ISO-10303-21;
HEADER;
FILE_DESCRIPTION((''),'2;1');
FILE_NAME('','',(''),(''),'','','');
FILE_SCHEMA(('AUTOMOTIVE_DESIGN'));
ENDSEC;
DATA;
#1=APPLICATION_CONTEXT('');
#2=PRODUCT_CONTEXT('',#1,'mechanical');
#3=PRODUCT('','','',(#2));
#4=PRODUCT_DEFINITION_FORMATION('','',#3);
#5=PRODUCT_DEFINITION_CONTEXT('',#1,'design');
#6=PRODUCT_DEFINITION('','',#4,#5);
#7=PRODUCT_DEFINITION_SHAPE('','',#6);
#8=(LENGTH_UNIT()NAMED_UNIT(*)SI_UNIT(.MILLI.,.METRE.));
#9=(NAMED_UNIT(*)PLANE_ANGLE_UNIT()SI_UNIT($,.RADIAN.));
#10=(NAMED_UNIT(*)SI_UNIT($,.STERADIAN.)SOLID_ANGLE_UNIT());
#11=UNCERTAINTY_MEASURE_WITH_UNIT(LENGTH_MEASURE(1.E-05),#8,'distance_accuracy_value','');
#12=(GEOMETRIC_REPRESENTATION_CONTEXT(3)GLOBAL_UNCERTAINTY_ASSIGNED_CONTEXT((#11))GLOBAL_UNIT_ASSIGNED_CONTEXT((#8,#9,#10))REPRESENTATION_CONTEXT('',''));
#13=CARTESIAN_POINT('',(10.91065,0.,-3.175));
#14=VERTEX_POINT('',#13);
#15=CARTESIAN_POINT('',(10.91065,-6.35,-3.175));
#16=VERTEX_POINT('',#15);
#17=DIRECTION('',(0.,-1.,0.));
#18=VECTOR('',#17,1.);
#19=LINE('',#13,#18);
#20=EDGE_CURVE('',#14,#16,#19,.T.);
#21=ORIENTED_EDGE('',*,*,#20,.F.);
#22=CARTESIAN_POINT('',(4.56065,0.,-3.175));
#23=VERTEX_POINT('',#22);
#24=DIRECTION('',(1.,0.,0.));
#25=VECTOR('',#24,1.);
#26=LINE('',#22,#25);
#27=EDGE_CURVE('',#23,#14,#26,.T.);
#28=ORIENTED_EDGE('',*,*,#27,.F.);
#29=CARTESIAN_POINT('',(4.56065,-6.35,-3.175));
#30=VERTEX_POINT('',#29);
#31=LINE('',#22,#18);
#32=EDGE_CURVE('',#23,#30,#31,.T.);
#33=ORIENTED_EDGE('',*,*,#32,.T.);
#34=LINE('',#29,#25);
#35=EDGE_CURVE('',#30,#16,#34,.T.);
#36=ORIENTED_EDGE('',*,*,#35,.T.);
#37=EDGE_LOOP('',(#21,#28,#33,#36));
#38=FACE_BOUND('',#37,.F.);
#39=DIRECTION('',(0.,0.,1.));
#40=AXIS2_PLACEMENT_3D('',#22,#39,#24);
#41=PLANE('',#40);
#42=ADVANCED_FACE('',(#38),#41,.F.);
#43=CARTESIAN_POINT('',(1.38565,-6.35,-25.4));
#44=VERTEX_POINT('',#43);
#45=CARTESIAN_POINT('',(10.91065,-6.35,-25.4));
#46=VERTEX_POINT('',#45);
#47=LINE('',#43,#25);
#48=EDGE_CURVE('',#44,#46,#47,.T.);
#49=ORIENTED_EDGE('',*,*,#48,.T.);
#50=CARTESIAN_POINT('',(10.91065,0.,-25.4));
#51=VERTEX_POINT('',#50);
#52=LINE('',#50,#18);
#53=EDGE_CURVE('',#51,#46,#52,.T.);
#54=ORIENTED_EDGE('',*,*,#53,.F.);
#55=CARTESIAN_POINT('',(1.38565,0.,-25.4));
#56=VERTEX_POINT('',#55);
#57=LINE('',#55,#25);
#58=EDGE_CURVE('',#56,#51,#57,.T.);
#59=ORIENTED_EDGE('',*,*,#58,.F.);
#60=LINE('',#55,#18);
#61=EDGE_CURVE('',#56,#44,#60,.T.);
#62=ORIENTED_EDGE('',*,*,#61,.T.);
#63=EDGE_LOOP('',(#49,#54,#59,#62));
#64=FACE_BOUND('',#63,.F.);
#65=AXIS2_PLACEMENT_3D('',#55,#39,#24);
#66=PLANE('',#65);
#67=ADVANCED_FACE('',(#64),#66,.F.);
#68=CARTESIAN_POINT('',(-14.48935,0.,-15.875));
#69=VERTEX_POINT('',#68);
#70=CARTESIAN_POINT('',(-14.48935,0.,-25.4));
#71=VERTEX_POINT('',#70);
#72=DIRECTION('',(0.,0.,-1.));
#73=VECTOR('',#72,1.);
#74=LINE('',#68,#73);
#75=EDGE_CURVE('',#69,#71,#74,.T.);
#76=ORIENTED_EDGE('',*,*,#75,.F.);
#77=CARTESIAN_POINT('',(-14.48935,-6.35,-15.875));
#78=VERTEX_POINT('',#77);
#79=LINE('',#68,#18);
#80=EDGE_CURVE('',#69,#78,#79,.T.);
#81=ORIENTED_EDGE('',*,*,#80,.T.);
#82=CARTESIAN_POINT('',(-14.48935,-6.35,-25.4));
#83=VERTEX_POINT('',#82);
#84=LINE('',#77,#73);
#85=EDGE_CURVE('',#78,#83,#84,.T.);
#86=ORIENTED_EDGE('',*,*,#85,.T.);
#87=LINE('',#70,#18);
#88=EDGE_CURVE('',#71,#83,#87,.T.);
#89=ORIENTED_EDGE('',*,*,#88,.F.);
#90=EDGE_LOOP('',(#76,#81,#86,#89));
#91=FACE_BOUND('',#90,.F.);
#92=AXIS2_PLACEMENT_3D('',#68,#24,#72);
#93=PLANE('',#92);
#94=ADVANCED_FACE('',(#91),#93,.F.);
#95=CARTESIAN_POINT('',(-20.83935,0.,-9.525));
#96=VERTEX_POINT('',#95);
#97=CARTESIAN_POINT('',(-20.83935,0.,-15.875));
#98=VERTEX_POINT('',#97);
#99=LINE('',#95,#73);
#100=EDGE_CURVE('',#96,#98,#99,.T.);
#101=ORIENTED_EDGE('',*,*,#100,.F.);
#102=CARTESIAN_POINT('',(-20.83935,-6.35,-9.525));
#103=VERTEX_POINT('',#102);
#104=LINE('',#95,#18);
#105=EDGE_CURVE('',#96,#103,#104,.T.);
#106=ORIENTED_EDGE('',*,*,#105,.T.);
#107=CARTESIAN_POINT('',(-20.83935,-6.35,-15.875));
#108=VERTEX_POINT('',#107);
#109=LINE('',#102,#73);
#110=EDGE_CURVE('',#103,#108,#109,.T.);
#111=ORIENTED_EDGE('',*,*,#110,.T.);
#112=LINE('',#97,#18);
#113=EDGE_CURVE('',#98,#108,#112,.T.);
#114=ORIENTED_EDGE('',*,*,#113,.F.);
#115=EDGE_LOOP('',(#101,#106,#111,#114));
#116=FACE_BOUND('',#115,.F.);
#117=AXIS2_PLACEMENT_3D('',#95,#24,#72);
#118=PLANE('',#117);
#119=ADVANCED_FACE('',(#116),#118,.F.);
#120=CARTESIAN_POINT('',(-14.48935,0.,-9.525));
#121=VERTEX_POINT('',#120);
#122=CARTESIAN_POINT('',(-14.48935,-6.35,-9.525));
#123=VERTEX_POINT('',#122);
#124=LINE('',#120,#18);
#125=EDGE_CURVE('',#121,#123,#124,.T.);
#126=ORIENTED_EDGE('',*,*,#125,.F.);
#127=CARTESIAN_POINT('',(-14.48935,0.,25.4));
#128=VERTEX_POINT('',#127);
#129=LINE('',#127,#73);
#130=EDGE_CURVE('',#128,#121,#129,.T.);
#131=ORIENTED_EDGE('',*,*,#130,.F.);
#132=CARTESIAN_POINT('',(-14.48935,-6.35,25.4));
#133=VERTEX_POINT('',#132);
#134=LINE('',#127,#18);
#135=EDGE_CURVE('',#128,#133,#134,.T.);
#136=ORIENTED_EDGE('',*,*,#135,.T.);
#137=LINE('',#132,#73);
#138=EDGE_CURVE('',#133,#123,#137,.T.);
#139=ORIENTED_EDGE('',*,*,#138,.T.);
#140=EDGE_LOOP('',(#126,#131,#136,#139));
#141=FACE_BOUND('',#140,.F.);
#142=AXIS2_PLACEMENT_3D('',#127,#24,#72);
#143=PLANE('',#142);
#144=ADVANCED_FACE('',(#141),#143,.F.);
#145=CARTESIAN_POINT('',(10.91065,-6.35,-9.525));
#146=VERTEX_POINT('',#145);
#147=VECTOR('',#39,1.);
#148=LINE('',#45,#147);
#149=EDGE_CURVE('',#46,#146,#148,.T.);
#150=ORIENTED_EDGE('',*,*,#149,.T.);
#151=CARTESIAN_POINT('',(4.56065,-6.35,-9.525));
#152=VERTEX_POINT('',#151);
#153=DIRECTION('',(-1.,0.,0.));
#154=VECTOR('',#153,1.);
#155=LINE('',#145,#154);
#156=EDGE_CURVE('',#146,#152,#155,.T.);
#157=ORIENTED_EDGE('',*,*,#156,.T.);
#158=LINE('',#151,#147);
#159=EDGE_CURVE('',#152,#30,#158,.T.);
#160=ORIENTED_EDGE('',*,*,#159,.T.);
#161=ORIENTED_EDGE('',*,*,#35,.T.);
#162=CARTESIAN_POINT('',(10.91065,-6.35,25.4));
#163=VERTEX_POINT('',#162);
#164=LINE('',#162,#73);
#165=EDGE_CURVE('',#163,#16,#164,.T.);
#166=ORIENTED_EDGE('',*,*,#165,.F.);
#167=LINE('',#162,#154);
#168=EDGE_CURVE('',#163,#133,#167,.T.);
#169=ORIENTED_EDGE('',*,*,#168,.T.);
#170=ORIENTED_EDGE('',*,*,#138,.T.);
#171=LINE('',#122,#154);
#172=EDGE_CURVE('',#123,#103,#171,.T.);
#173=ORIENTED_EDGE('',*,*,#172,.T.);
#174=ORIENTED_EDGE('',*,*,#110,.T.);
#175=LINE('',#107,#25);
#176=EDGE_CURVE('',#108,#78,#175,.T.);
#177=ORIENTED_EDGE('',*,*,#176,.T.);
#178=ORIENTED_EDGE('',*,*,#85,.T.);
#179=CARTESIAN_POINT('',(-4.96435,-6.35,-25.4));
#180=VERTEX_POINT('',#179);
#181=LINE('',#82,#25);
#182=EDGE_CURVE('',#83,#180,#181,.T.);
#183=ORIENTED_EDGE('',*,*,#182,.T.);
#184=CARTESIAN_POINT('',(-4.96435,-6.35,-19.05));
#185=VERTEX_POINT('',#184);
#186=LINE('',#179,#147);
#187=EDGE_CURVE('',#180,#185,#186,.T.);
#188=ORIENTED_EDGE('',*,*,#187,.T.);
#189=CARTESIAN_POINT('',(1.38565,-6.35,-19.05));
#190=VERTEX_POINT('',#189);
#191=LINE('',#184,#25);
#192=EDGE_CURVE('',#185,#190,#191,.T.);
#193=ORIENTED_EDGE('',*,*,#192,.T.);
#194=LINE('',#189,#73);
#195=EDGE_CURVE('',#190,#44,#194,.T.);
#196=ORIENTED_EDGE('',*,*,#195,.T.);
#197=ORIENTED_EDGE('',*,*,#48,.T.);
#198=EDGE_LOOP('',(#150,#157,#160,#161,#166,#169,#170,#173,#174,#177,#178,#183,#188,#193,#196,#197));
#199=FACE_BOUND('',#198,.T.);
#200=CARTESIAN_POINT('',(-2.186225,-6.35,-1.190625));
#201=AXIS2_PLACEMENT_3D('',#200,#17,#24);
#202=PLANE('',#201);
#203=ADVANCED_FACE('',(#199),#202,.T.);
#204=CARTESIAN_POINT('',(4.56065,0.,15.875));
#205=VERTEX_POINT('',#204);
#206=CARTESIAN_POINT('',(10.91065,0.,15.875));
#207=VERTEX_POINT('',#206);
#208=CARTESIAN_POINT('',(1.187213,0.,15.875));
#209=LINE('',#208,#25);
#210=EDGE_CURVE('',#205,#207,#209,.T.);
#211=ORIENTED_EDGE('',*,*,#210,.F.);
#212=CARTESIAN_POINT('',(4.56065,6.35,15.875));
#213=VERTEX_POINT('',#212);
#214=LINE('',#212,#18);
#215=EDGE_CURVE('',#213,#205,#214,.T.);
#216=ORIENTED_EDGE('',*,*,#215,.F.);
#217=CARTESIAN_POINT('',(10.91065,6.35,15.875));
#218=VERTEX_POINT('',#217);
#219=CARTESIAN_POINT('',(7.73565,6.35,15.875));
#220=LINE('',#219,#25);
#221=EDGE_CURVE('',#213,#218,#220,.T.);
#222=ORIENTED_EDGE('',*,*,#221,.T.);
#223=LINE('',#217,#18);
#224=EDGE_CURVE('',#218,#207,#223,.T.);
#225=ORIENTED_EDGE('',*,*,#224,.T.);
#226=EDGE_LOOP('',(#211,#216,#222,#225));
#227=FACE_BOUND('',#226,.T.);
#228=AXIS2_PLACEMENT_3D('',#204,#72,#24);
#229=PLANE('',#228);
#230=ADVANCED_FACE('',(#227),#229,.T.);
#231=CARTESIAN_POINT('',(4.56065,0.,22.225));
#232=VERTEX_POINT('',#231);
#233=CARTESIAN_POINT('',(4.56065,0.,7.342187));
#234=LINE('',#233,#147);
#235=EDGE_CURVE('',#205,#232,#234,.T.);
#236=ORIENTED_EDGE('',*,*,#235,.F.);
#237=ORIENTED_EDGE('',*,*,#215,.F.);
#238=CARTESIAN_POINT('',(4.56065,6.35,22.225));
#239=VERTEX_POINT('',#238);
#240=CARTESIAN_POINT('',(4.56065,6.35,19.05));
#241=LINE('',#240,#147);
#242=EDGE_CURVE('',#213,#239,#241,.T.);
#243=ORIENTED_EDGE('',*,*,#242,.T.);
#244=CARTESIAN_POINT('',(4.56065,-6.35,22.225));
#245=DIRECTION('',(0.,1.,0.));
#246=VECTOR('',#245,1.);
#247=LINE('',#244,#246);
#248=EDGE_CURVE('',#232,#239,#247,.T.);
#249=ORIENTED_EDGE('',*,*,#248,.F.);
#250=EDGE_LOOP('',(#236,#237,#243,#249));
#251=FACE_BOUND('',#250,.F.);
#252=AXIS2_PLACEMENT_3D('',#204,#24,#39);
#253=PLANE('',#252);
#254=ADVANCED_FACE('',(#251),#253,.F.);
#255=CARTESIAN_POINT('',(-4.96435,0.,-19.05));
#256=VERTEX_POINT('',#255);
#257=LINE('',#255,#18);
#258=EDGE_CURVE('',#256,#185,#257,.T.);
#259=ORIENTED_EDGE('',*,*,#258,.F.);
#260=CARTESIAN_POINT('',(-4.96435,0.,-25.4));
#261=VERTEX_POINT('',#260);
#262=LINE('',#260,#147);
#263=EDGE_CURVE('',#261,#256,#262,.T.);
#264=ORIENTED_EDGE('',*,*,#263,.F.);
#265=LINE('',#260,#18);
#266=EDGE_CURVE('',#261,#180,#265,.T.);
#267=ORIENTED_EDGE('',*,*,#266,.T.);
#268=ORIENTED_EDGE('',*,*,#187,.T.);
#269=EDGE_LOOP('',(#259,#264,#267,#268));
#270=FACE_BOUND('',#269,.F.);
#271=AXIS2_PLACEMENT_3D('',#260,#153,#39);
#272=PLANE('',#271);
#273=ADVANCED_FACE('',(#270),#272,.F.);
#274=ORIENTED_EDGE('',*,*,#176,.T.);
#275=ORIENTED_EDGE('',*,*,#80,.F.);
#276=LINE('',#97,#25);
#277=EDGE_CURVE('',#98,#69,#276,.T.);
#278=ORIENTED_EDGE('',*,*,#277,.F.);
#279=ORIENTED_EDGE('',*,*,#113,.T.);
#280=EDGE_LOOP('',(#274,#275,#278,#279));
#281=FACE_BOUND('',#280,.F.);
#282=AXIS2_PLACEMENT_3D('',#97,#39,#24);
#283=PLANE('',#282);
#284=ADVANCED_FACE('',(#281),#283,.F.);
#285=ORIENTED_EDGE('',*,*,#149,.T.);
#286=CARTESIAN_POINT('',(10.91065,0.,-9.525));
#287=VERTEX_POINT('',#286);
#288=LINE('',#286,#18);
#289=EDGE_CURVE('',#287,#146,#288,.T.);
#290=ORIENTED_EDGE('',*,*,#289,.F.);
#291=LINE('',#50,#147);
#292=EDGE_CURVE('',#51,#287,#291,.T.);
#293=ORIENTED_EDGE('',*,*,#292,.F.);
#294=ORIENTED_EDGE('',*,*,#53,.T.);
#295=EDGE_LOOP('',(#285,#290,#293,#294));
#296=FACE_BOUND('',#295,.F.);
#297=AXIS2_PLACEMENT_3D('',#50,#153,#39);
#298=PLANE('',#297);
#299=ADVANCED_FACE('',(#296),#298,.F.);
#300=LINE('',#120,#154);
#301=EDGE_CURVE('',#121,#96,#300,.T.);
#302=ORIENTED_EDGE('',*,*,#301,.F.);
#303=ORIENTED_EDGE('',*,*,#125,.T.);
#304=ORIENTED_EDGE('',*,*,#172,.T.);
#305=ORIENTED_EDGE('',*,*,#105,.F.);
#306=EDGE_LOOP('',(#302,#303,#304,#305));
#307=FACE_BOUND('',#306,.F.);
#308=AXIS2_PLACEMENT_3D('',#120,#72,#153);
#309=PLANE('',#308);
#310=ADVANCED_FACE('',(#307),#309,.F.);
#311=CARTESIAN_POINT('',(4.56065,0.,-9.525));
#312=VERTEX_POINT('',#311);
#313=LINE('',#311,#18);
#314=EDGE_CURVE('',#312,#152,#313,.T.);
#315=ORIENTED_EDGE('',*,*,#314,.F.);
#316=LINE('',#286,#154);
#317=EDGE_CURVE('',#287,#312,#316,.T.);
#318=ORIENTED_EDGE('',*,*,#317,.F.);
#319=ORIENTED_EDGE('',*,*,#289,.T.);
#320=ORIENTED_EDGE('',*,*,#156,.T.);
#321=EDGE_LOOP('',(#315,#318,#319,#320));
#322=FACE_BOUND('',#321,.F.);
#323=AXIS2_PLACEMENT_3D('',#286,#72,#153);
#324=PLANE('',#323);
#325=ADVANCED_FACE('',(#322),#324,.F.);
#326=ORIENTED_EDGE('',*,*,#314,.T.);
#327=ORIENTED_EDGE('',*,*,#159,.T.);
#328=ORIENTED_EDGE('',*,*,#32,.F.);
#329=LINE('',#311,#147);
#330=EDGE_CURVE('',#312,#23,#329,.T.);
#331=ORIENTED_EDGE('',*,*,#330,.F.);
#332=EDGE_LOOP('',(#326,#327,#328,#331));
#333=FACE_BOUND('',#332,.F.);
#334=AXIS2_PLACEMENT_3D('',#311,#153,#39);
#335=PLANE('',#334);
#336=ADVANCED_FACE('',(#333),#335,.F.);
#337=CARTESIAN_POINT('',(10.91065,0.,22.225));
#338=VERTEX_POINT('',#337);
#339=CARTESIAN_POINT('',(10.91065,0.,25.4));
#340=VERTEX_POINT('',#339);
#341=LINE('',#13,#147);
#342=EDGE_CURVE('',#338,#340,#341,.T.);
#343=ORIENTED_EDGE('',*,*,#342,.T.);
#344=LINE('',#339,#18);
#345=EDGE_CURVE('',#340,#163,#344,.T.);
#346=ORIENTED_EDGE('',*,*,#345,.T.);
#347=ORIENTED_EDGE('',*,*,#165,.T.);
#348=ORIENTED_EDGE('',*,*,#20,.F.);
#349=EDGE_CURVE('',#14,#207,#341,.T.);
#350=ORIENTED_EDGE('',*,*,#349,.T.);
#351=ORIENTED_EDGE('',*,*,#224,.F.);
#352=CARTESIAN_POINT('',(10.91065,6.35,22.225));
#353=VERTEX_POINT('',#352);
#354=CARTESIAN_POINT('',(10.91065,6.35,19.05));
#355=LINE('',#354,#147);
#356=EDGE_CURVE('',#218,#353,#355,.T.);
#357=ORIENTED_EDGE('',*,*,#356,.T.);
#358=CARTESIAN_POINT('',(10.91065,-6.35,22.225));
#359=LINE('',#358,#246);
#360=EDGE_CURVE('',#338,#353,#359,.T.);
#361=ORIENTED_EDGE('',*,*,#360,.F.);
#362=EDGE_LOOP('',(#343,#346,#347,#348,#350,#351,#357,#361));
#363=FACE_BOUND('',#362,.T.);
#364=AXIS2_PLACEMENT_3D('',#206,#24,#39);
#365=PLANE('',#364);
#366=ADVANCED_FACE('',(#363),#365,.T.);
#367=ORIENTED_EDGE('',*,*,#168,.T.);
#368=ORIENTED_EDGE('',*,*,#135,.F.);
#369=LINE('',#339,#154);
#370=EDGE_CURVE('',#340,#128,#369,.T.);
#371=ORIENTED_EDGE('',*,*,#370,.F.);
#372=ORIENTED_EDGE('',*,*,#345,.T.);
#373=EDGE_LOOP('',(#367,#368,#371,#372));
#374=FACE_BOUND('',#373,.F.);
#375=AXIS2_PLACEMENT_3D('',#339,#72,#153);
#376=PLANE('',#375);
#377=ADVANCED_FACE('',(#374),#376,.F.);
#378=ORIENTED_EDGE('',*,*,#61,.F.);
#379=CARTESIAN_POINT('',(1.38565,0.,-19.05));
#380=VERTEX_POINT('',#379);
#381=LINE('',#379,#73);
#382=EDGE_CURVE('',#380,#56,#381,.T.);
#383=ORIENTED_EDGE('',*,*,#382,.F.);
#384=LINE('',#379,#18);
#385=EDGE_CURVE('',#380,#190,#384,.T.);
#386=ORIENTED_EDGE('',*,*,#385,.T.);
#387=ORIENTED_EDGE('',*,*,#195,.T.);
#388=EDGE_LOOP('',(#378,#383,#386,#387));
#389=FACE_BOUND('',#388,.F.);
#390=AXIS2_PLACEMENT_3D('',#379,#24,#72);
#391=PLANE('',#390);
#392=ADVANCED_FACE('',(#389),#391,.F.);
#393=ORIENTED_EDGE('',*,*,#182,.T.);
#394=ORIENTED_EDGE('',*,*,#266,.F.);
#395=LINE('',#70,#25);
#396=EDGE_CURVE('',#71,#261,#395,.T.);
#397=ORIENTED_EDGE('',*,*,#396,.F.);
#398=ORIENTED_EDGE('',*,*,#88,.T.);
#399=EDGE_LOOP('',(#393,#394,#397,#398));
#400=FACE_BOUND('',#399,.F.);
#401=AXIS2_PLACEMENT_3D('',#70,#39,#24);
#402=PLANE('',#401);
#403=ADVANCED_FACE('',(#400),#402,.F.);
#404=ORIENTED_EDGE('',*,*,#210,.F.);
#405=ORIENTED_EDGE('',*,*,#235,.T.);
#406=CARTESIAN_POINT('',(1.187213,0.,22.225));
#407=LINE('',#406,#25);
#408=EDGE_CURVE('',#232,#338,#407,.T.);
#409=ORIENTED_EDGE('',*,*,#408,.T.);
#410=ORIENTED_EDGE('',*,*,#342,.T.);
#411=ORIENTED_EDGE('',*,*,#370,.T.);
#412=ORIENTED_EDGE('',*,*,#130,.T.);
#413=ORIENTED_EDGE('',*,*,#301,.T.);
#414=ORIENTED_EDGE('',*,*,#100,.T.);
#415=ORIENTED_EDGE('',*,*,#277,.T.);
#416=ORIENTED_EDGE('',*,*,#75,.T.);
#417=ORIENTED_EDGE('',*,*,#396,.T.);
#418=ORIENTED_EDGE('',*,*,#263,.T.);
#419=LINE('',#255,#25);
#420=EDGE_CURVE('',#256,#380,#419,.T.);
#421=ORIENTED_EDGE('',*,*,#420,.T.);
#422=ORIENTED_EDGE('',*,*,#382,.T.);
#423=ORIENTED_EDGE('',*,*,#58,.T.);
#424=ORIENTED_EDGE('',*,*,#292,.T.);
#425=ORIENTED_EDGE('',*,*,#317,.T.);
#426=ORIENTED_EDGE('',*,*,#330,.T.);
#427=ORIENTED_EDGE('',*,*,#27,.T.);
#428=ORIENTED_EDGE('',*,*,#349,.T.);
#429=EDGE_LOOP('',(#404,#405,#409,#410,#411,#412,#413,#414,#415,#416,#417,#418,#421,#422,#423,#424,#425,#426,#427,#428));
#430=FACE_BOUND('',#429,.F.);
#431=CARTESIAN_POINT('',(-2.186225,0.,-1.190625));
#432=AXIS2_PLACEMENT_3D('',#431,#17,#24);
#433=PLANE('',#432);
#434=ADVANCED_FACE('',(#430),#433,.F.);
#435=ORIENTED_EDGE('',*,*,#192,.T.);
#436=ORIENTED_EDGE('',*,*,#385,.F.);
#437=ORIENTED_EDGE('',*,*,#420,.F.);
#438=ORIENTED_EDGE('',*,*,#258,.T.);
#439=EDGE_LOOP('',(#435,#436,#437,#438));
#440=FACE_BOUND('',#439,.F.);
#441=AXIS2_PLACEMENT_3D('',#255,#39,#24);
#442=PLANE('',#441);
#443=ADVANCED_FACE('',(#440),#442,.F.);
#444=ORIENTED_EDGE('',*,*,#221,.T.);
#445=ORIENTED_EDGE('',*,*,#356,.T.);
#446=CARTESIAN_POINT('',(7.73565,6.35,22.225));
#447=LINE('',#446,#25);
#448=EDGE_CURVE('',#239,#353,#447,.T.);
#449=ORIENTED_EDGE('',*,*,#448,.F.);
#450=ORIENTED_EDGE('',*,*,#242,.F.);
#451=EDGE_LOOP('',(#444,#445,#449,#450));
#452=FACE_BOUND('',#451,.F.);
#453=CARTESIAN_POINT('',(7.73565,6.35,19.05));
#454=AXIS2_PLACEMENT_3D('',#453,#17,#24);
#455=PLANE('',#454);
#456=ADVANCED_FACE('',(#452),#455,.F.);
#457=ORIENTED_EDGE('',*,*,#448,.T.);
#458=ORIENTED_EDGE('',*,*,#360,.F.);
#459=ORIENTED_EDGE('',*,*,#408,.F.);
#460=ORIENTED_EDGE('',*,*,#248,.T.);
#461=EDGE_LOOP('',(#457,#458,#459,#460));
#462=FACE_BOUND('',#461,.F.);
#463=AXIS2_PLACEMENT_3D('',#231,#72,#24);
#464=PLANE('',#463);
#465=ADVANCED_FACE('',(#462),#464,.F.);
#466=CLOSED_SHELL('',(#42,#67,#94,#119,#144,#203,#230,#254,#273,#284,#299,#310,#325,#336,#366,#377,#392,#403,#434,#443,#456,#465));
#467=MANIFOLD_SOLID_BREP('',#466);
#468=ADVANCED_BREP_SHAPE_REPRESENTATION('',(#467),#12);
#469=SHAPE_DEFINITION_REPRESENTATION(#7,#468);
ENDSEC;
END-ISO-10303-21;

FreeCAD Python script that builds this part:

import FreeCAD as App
import Part
import Sketcher
Q = App.Units.Quantity

doc = App.newDocument("Part")
body = doc.addObject("PartDesign::Body", "Body")

sketch1 = body.newObject("Sketcher::SketchObject", "Sketch")
sketch1.AttachmentSupport = (doc.getObject("XZ_Plane"), [""])
sketch1.MapMode = "FlatFace"
sketch1.addGeometry([
    Part.LineSegment(App.Vector(10.91065, 25.4, 0), App.Vector(-14.48935, 25.4, 0)),
    Part.LineSegment(App.Vector(-14.48935, 25.4, 0), App.Vector(-14.48935, -9.525, 0)),
    Part.LineSegment(App.Vector(-14.48935, -9.525, 0), App.Vector(-20.83935, -9.525, 0)),
    Part.LineSegment(App.Vector(-20.83935, -9.525, 0), App.Vector(-20.83935, -15.875, 0)),
    Part.LineSegment(App.Vector(-20.83935, -15.875, 0), App.Vector(-14.48935, -15.875, 0)),
    Part.LineSegment(App.Vector(-14.48935, -15.875, 0), App.Vector(-14.48935, -25.4, 0)),
    Part.LineSegment(App.Vector(-14.48935, -25.4, 0), App.Vector(-4.96435, -25.4, 0)),
    Part.LineSegment(App.Vector(-4.96435, -25.4, 0), App.Vector(-4.96435, -19.05, 0)),
    Part.LineSegment(App.Vector(-4.96435, -19.05, 0), App.Vector(1.38565, -19.05, 0)),
    Part.LineSegment(App.Vector(1.38565, -19.05, 0), App.Vector(1.38565, -25.4, 0)),
    Part.LineSegment(App.Vector(1.38565, -25.4, 0), App.Vector(10.91065, -25.4, 0)),
    Part.LineSegment(App.Vector(10.91065, -25.4, 0), App.Vector(10.91065, -9.525, 0)),
    Part.LineSegment(App.Vector(10.91065, -9.525, 0), App.Vector(4.56065, -9.525, 0)),
    Part.LineSegment(App.Vector(4.56065, -9.525, 0), App.Vector(4.56065, -3.175, 0)),
    Part.LineSegment(App.Vector(4.56065, -3.175, 0), App.Vector(10.91065, -3.175, 0)),
    Part.LineSegment(App.Vector(10.91065, -3.175, 0), App.Vector(10.91065, 25.4, 0)),
], False)
sketch1.addConstraint([
    Sketcher.Constraint("Coincident", 0, 2, 1, 1),
    Sketcher.Constraint("Coincident", 1, 2, 2, 1),
    Sketcher.Constraint("Coincident", 2, 2, 3, 1),
    Sketcher.Constraint("Coincident", 3, 2, 4, 1),
    Sketcher.Constraint("Coincident", 4, 2, 5, 1),
    Sketcher.Constraint("Coincident", 5, 2, 6, 1),
    Sketcher.Constraint("Coincident", 6, 2, 7, 1),
    Sketcher.Constraint("Coincident", 7, 2, 8, 1),
    Sketcher.Constraint("Coincident", 8, 2, 9, 1),
    Sketcher.Constraint("Coincident", 9, 2, 10, 1),
    Sketcher.Constraint("Coincident", 10, 2, 11, 1),
    Sketcher.Constraint("Coincident", 11, 2, 12, 1),
    Sketcher.Constraint("Coincident", 12, 2, 13, 1),
    Sketcher.Constraint("Coincident", 13, 2, 14, 1),
    Sketcher.Constraint("Coincident", 14, 2, 15, 1),
    Sketcher.Constraint("Coincident", 15, 2, 0, 1),
    Sketcher.Constraint("Horizontal", 0),
    Sketcher.Constraint("Vertical", 1),
    Sketcher.Constraint("Horizontal", 2),
    Sketcher.Constraint("Vertical", 3),
    Sketcher.Constraint("Horizontal", 4),
    Sketcher.Constraint("Vertical", 5),
    Sketcher.Constraint("Horizontal", 6),
    Sketcher.Constraint("Vertical", 7),
    Sketcher.Constraint("Horizontal", 8),
    Sketcher.Constraint("Vertical", 9),
    Sketcher.Constraint("Horizontal", 10),
    Sketcher.Constraint("Vertical", 11),
    Sketcher.Constraint("Horizontal", 12),
    Sketcher.Constraint("Vertical", 13),
    Sketcher.Constraint("Horizontal", 14),
    Sketcher.Constraint("Vertical", 15),
    Sketcher.Constraint("Symmetric", 0, 2, 5, 2, -1),
    Sketcher.Constraint("Symmetric", 10, 2, 15, 2, -1),
    Sketcher.Constraint("Horizontal", 2, 2, 11, 2),
    Sketcher.Constraint("Equal", 4, 8),
    Sketcher.Constraint("Equal", 6, 10),
    Sketcher.Constraint("Equal", 8, 12),
    Sketcher.Constraint("Equal", 14, 3),
    Sketcher.Constraint("Equal", 10, 5),
    Sketcher.Constraint("Equal", 3, 7),
    Sketcher.Constraint("Equal", 9, 13),
    Sketcher.Constraint("DistanceX", 0, 2, 0, 1, Q("1 in")),
    Sketcher.Constraint("DistanceY", -1, 1, 0, 2, Q("1 in")),
    Sketcher.Constraint("DistanceX", 2, 2, 2, 1, Q("0.25 in")),
    Sketcher.Constraint("DistanceX", 0, 2, -1, 1, 14.48935),
])
pad1 = body.newObject("PartDesign::Pad", "Pad")
pad1.Profile = sketch1
pad1.Length = Q("0.25 in")

sketch2 = body.newObject("Sketcher::SketchObject", "Sketch001")
sketch2.AttachmentSupport = (doc.getObject("XZ_Plane"), [""])
sketch2.MapMode = "FlatFace"
sketch2.addGeometry([
    Part.LineSegment(App.Vector(4.56065, 22.225, 0), App.Vector(4.56065, 15.875, 0)),
    Part.LineSegment(App.Vector(4.56065, 15.875, 0), App.Vector(10.91065, 15.875, 0)),
    Part.LineSegment(App.Vector(10.91065, 15.875, 0), App.Vector(10.91065, 22.225, 0)),
    Part.LineSegment(App.Vector(10.91065, 22.225, 0), App.Vector(4.56065, 22.225, 0)),
], False)
sketch2.addConstraint([
    Sketcher.Constraint("Coincident", 0, 2, 1, 1),
    Sketcher.Constraint("Coincident", 1, 2, 2, 1),
    Sketcher.Constraint("Coincident", 2, 2, 3, 1),
    Sketcher.Constraint("Coincident", 3, 2, 0, 1),
    Sketcher.Constraint("Vertical", 0),
    Sketcher.Constraint("Horizontal", 1),
    Sketcher.Constraint("Vertical", 2),
    Sketcher.Constraint("Horizontal", 3),
    Sketcher.Constraint("Equal", 3, 0),
    Sketcher.Constraint("DistanceX", 1, 1, 1, 2, Q("0.25 in")),
    Sketcher.Constraint("DistanceY", -1, 1, 0, 2, Q("0.625 in")),
    Sketcher.Constraint("DistanceX", -1, 1, 0, 2, 4.56065),
])
pad2 = body.newObject("PartDesign::Pad", "Pad001")
pad2.Profile = sketch2
pad2.Length = Q("0.5 in")
pad2.Midplane = True

doc.recompute()
